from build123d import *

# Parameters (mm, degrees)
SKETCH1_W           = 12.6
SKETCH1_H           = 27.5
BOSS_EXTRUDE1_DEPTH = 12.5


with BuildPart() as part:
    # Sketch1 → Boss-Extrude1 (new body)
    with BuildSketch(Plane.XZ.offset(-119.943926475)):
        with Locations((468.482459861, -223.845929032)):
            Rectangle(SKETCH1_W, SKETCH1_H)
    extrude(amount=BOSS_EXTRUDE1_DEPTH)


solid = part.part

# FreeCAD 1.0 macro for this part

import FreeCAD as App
import Part
import Sketcher
from FreeCAD import Vector


def add_polygon(sketch, points):
    """Adds a closed chain of lines whose ends are joined by coincident constraints."""
    first, n = sketch.GeometryCount, len(points)
    for a, b in zip(points, points[1:] + points[:1]):
        sketch.addGeometry(Part.LineSegment(App.Vector(*a, 0), App.Vector(*b, 0)), False)
    for i in range(n):
        sketch.addConstraint(Sketcher.Constraint("Coincident", first + i, 2, first + (i + 1) % n, 1))

doc = App.newDocument("Part")
body = doc.addObject("PartDesign::Body", "Body")

# Sketch on XZ plane
sketch1 = doc.addObject("Sketcher::SketchObject", "Sketch")
body.addObject(sketch1)
sketch1.AttachmentSupport = (doc.XZ_Plane, [""])
sketch1.MapMode = "FlatFace"
sketch1.AttachmentOffset = App.Placement(Vector(0, 0, -119.943926), App.Rotation())
add_polygon(sketch1, [(462.18246, -210.095929), (462.18246, -237.595929), (474.78246, -237.595929), (474.78246, -210.095929)])  # lines 0-3
sketch1.addConstraint([
    Sketcher.Constraint("Vertical", 0),
    Sketcher.Constraint("Horizontal", 1),
    Sketcher.Constraint("Vertical", 2),
    Sketcher.Constraint("Horizontal", 3),
    Sketcher.Constraint("DistanceX", 1, 1, 1, 2, 12.6),
    Sketcher.Constraint("DistanceY", 0, 2, 0, 1, 27.5),
    Sketcher.Constraint("DistanceX", -1, 1, 0, 2, 462.18246),
    Sketcher.Constraint("DistanceY", 0, 2, -1, 1, 237.595929),
])
pad1 = doc.addObject("PartDesign::Pad", "Pad")
body.addObject(pad1)
pad1.Profile = sketch1
pad1.Length = 12.5

doc.recompute()
